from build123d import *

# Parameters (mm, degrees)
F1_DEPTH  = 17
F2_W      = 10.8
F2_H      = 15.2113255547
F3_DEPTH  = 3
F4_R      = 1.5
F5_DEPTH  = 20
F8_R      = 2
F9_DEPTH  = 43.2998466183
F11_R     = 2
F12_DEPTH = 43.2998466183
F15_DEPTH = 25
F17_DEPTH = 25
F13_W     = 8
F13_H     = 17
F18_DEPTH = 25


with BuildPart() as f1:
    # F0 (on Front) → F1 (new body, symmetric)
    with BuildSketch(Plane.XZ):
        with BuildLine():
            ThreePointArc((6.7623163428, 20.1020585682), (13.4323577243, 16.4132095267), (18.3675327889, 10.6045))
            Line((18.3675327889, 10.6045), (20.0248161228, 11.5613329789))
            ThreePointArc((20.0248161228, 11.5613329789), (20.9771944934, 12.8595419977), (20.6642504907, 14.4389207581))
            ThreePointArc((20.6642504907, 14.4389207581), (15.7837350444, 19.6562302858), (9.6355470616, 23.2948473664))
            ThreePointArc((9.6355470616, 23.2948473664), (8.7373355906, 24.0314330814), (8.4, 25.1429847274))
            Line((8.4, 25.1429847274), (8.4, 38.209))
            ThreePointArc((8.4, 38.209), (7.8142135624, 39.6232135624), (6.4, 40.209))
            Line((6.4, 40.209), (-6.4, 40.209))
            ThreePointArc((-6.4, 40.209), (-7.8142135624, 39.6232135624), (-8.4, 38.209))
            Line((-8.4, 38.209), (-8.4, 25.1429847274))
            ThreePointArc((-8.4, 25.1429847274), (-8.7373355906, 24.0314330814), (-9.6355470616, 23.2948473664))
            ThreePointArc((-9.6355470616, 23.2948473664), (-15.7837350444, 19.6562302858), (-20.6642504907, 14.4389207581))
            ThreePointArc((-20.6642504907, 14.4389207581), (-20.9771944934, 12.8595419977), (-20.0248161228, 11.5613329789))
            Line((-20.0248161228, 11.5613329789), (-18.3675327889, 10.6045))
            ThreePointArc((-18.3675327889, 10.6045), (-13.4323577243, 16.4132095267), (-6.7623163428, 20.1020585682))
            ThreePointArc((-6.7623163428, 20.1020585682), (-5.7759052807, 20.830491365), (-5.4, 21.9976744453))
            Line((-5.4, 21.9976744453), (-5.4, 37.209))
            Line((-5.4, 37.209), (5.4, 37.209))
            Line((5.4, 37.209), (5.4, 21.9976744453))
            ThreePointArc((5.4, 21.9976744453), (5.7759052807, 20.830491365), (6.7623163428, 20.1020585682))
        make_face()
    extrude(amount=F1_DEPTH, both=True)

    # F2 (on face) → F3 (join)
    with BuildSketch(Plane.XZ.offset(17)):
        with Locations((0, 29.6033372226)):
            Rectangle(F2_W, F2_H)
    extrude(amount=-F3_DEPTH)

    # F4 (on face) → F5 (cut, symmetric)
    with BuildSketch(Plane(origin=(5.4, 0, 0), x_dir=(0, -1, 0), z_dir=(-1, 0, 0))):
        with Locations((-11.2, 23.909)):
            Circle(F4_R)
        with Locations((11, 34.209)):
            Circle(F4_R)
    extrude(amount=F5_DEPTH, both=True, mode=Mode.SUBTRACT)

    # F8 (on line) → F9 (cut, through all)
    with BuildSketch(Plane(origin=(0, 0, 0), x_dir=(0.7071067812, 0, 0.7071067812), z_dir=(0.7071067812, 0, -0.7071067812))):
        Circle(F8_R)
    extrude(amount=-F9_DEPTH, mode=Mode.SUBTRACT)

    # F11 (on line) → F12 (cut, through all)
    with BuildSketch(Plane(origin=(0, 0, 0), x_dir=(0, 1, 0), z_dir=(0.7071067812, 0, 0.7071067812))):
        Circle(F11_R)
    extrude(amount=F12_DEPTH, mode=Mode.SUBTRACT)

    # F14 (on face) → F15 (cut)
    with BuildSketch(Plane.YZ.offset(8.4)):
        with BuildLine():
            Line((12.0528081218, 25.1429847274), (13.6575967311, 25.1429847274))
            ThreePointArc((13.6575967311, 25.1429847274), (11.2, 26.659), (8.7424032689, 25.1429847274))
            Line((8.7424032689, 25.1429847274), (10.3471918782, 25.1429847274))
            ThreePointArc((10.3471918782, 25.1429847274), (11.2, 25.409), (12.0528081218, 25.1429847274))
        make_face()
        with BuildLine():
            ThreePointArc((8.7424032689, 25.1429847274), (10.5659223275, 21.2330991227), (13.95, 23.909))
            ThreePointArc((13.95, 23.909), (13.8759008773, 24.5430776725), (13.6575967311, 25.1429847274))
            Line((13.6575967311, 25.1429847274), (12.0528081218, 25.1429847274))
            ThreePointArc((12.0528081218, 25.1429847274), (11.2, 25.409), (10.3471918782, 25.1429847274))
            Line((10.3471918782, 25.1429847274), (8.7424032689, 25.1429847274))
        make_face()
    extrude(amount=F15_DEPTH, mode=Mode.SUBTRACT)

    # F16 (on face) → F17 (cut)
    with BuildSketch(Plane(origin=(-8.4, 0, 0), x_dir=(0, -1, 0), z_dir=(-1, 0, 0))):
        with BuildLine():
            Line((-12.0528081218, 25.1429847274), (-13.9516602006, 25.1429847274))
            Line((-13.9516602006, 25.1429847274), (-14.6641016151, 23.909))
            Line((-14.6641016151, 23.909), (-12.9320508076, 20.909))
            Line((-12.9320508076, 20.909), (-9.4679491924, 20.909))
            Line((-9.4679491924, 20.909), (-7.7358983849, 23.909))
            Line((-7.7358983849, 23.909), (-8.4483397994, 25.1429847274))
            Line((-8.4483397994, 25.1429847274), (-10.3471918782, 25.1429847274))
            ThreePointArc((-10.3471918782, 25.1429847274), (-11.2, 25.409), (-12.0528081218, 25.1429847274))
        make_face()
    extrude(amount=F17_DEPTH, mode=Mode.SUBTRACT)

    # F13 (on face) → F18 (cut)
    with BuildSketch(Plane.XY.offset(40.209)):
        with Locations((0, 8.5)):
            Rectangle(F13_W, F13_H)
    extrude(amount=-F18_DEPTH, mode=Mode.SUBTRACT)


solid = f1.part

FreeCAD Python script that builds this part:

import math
import FreeCAD as App
import Part
import Sketcher

V = App.Vector
Q = App.Units.Quantity


def add_polygon(sketch, points):
    """Adds a closed chain of lines whose ends are joined by coincident constraints."""
    first, n = sketch.GeometryCount, len(points)
    for a, b in zip(points, points[1:] + points[:1]):
        sketch.addGeometry(Part.LineSegment(App.Vector(*a, 0), App.Vector(*b, 0)), False)
    for i in range(n):
        sketch.addConstraint(Sketcher.Constraint("Coincident", first + i, 2, first + (i + 1) % n, 1))

doc = App.newDocument("Part")
body = doc.addObject("PartDesign::Body", "Body")

# Sketch on XZ plane
sketch1 = doc.addObject("Sketcher::SketchObject", "Sketch")
body.addObject(sketch1)
sketch1.AttachmentSupport = (doc.XZ_Plane, [""])
sketch1.MapMode = "FlatFace"
sketch1.addGeometry([
    Part.ArcOfCircle(Part.Circle(V(0, 0, 0), V(0, 0, 1), 21.209), math.radians(30), math.radians(71.407102)),  # 0
    Part.LineSegment(V(18.367533, 10.6045, 0), V(20.024816, 11.561333, 0)),  # 1
    Part.ArcOfCircle(Part.Circle(V(19.024816, 13.293384, 0), V(0, 0, 1), 2), math.radians(-60), math.radians(34.943507)),  # 2
    Part.ArcOfCircle(Part.Circle(V(0, 0, 0), V(0, 0, 1), 25.209), math.radians(34.943507), math.radians(67.528336)),  # 3
    Part.ArcOfCircle(Part.Circle(V(10.4, 25.142985, 0), V(0, 0, 1), 2), math.radians(180), math.radians(247.528336)),  # 4
    Part.LineSegment(V(8.4, 25.142985, 0), V(8.4, 38.209, 0)),  # 5
    Part.ArcOfCircle(Part.Circle(V(6.4, 38.209, 0), V(0, 0, 1), 2), math.radians(0), math.radians(90)),  # 6
    Part.LineSegment(V(6.4, 40.209, 0), V(-6.4, 40.209, 0)),  # 7
    Part.ArcOfCircle(Part.Circle(V(-6.4, 38.209, 0), V(0, 0, 1), 2), math.radians(90), math.radians(180)),  # 8
    Part.LineSegment(V(-8.4, 38.209, 0), V(-8.4, 25.142985, 0)),  # 9
    Part.ArcOfCircle(Part.Circle(V(-10.4, 25.142985, 0), V(0, 0, 1), 2), math.radians(-67.528336), math.radians(0)),  # 10
    Part.ArcOfCircle(Part.Circle(V(0, 0, 0), V(0, 0, 1), 25.209), math.radians(112.471664), math.radians(145.056493)),  # 11
    Part.ArcOfCircle(Part.Circle(V(-19.024816, 13.293384, 0), V(0, 0, 1), 2), math.radians(145.056493), math.radians(240)),  # 12
    Part.LineSegment(V(-20.024816, 11.561333, 0), V(-18.367533, 10.6045, 0)),  # 13
    Part.ArcOfCircle(Part.Circle(V(0, 0, 0), V(0, 0, 1), 21.209), math.radians(108.592898), math.radians(150)),  # 14
    Part.ArcOfCircle(Part.Circle(V(-7.4, 21.997674, 0), V(0, 0, 1), 2), math.radians(-71.407102), math.radians(0)),  # 15
    Part.LineSegment(V(-5.4, 21.997674, 0), V(-5.4, 37.209, 0)),  # 16
    Part.LineSegment(V(-5.4, 37.209, 0), V(5.4, 37.209, 0)),  # 17
    Part.LineSegment(V(5.4, 37.209, 0), V(5.4, 21.997674, 0)),  # 18
    Part.ArcOfCircle(Part.Circle(V(7.4, 21.997674, 0), V(0, 0, 1), 2), math.radians(180), math.radians(251.407102)),  # 19
], False)
sketch1.addConstraint([
    Sketcher.Constraint("Coincident", 0, 1, 1, 1),
    Sketcher.Constraint("Tangent", 1, 2, 2, 1),
    Sketcher.Constraint("Tangent", 2, 2, 3, 1),
    Sketcher.Constraint("Tangent", 3, 2, 4, 2),
    Sketcher.Constraint("Tangent", 4, 1, 5, 1),
    Sketcher.Constraint("Tangent", 5, 2, 6, 1),
    Sketcher.Constraint("Tangent", 6, 2, 7, 1),
    Sketcher.Constraint("Tangent", 7, 2, 8, 1),
    Sketcher.Constraint("Tangent", 8, 2, 9, 1),
    Sketcher.Constraint("Tangent", 9, 2, 10, 2),
    Sketcher.Constraint("Tangent", 10, 1, 11, 1),
    Sketcher.Constraint("Tangent", 11, 2, 12, 1),
    Sketcher.Constraint("Tangent", 12, 2, 13, 1),
    Sketcher.Constraint("Coincident", 13, 2, 14, 2),
    Sketcher.Constraint("Tangent", 14, 1, 15, 1),
    Sketcher.Constraint("Tangent", 15, 2, 16, 1),
    Sketcher.Constraint("Coincident", 16, 2, 17, 1),
    Sketcher.Constraint("Coincident", 17, 2, 18, 1),
    Sketcher.Constraint("Tangent", 18, 2, 19, 1),
    Sketcher.Constraint("Tangent", 19, 2, 0, 2),
    Sketcher.Constraint("Vertical", 5),
    Sketcher.Constraint("Horizontal", 7),
    Sketcher.Constraint("Vertical", 9),
    Sketcher.Constraint("Vertical", 16),
    Sketcher.Constraint("Horizontal", 17),
    Sketcher.Constraint("Vertical", 18),
    Sketcher.Constraint("Coincident", 0, 3, -1, 1),
    Sketcher.Constraint("Coincident", 3, 3, -1, 1),
    Sketcher.Constraint("Coincident", 11, 3, -1, 1),
    Sketcher.Constraint("Coincident", 14, 3, -1, 1),
    Sketcher.Constraint("Equal", 2, 4),
    Sketcher.Constraint("Equal", 4, 6),
    Sketcher.Constraint("Equal", 6, 8),
    Sketcher.Constraint("Equal", 8, 10),
    Sketcher.Constraint("Equal", 3, 11),
    Sketcher.Constraint("Equal", 10, 12),
    Sketcher.Constraint("Equal", 0, 14),
    Sketcher.Constraint("Equal", 12, 15),
    Sketcher.Constraint("Equal", 15, 19),
    Sketcher.Constraint("Symmetric", 1, 2, 12, 2, -2),
    Sketcher.Constraint("Horizontal", 4, 3, 10, 3),
    Sketcher.Constraint("Horizontal", 15, 3, 19, 3),
    Sketcher.Constraint("Radius", 2, Q("2 mm")),
    Sketcher.Constraint("Angle", 1, Q("30 deg")),
    Sketcher.Constraint("DistanceX", 7, 2, 7, 1, Q("12.8 mm")),
    Sketcher.Constraint("DistanceX", 17, 1, 17, 2, Q("10.8 mm")),
    Sketcher.Constraint("Radius", 0, Q("21.209 mm")),
    Sketcher.Constraint("Radius", 3, Q("25.209 mm")),
    Sketcher.Constraint("DistanceY", 16, 2, 8, 3, Q("1 mm")),
    Sketcher.Constraint("DistanceY", -1, 1, 6, 3, Q("38.209 mm")),
    Sketcher.Constraint("DistanceY", -1, 1, 0, 1, Q("10.6045 mm")),
])
pad1 = doc.addObject("PartDesign::Pad", "Pad")
body.addObject(pad1)
pad1.Profile = sketch1
pad1.Length = 34
pad1.Midplane = True

# Sketch on XZ plane
sketch2 = doc.addObject("Sketcher::SketchObject", "Sketch001")
body.addObject(sketch2)
sketch2.AttachmentSupport = (doc.XZ_Plane, [""])
sketch2.MapMode = "FlatFace"
sketch2.AttachmentOffset = App.Placement(V(0, 0, 17), App.Rotation())
add_polygon(sketch2, [(-5.4, 37.209), (-5.4, 21.997674), (5.4, 21.997674), (5.4, 37.209)])  # lines 0-3
sketch2.addConstraint([
    Sketcher.Constraint("Vertical", 0),
    Sketcher.Constraint("Horizontal", 1),
    Sketcher.Constraint("Vertical", 2),
    Sketcher.Constraint("Horizontal", 3),
    Sketcher.Constraint("DistanceX", 1, 1, 1, 2, Q("10.8 mm")),
    Sketcher.Constraint("DistanceX", 0, 2, -1, 1, Q("5.4 mm")),
    Sketcher.Constraint("DistanceY", -1, 1, 2, 2, Q("37.209 mm")),
    Sketcher.Constraint("DistanceY", 0, 2, 0, 1, Q("15.211326 mm")),
])
pad2 = doc.addObject("PartDesign::Pad", "Pad001")
body.addObject(pad2)
pad2.Profile = sketch2
pad2.Length = 3
pad2.Reversed = True

# Sketch on YZ plane
sketch3 = doc.addObject("Sketcher::SketchObject", "Sketch002")
body.addObject(sketch3)
sketch3.AttachmentSupport = (doc.YZ_Plane, [""])
sketch3.MapMode = "FlatFace"
sketch3.AttachmentOffset = App.Placement(V(0, 0, 5.4), App.Rotation())
sketch3.addGeometry([
    Part.Circle(V(11.2, 23.909, 0), V(0, 0, 1), 1.5),
    Part.Circle(V(-11, 34.209, 0), V(0, 0, 1), 1.5),
], False)
sketch3.addConstraint([
    Sketcher.Constraint("Equal", 0, 1),
    Sketcher.Constraint("Diameter", 0, Q("3 mm")),
    Sketcher.Constraint("DistanceX", 1, 3, -1, 1, Q("11 mm")),
    Sketcher.Constraint("DistanceX", -1, 1, 0, 3, Q("11.2 mm")),
    Sketcher.Constraint("DistanceY", 0, 3, 1, 3, Q("10.3 mm")),
    Sketcher.Constraint("DistanceY", -1, 1, 0, 3, Q("23.909 mm")),
])
pocket1 = doc.addObject("PartDesign::Pocket", "Pocket")
body.addObject(pocket1)
pocket1.Profile = sketch3
pocket1.Length = 40
pocket1.Midplane = True

# Sketch on an angled plane
sketch4 = doc.addObject("Sketcher::SketchObject", "Sketch003")
body.addObject(sketch4)
sketch4.Placement = App.Placement(V(0, 0, 0), App.Rotation(V(0.707106781, 0, 0.707106781), V(0, -0.999999999, 0), V(0.707106781, 0, -0.707106781), "ZXY"))
sketch4.addGeometry(Part.Circle(V(0, 0, 0), V(0, 0, 1), 2), False)
sketch4.addConstraint([
    Sketcher.Constraint("Coincident", 0, 3, -1, 1),
    Sketcher.Constraint("Diameter", 0, Q("4 mm")),
])
pocket2 = doc.addObject("PartDesign::Pocket", "Pocket001")
body.addObject(pocket2)
pocket2.Profile = sketch4
pocket2.Type = "ThroughAll"

# Sketch on an angled plane
sketch5 = doc.addObject("Sketcher::SketchObject", "Sketch004")
body.addObject(sketch5)
sketch5.Placement = App.Placement(V(0, 0, 0), App.Rotation(V(0, 1, 0), V(-0.707106781, 0, 0.707106781), V(0.707106781, 0, 0.707106781), "ZXY"))
sketch5.addGeometry(Part.Circle(V(0, 0, 0), V(0, 0, 1), 2), False)
sketch5.addConstraint([
    Sketcher.Constraint("Coincident", 0, 3, -1, 1),
    Sketcher.Constraint("Diameter", 0, Q("4 mm")),
])
pocket3 = doc.addObject("PartDesign::Pocket", "Pocket002")
body.addObject(pocket3)
pocket3.Profile = sketch5
pocket3.Type = "ThroughAll"
pocket3.Reversed = True

# Sketch on YZ plane
sketch6 = doc.addObject("Sketcher::SketchObject", "Sketch005")
body.addObject(sketch6)
sketch6.AttachmentSupport = (doc.YZ_Plane, [""])
sketch6.MapMode = "FlatFace"
sketch6.AttachmentOffset = App.Placement(V(0, 0, 8.4), App.Rotation())
sketch6.addGeometry([
    Part.ArcOfCircle(Part.Circle(V(11.2, 23.909, 0), V(0, 0, 1), 2.75), math.radians(26.6617), math.radians(153.3383)),
    Part.ArcOfCircle(Part.Circle(V(11.2, 23.909, 0), V(0, 0, 1), 2.75), math.radians(153.3383), math.radians(360)),
    Part.ArcOfCircle(Part.Circle(V(11.2, 23.909, 0), V(0, 0, 1), 2.75), math.radians(0), math.radians(26.6617)),
], False)
sketch6.addConstraint([
    Sketcher.Constraint("Tangent", 0, 2, 1, 1),
    Sketcher.Constraint("Tangent", 1, 2, 2, 1),
    Sketcher.Constraint("Tangent", 2, 2, 0, 1),
    Sketcher.Constraint("Horizontal", 2, 3, 1, 2),
    Sketcher.Constraint("Horizontal", 0, 2, 2, 2),
    Sketcher.Constraint("Radius", 0, Q("2.75 mm")),
    Sketcher.Constraint("DistanceX", -1, 1, 0, 3, Q("11.2 mm")),
    Sketcher.Constraint("DistanceY", -1, 1, 0, 3, Q("23.909 mm")),
    Sketcher.Constraint("DistanceX", -1, 1, 0, 2, Q("8.742403 mm")),
])
pocket4 = doc.addObject("PartDesign::Pocket", "Pocket003")
body.addObject(pocket4)
pocket4.Profile = sketch6
pocket4.Length = 25
pocket4.Reversed = True

# Sketch on YZ plane
sketch7 = doc.addObject("Sketcher::SketchObject", "Sketch006")
body.addObject(sketch7)
sketch7.AttachmentSupport = (doc.YZ_Plane, [""])
sketch7.MapMode = "FlatFace"
sketch7.AttachmentOffset = App.Placement(V(0, 0, -8.4), App.Rotation())
sketch7.addGeometry([
    Part.LineSegment(V(12.052808, 25.142985, 0), V(13.95166, 25.142985, 0)),  # 0
    Part.LineSegment(V(13.95166, 25.142985, 0), V(14.664102, 23.909, 0)),  # 1
    Part.LineSegment(V(14.664102, 23.909, 0), V(12.932051, 20.909, 0)),  # 2
    Part.LineSegment(V(12.932051, 20.909, 0), V(9.467949, 20.909, 0)),  # 3
    Part.LineSegment(V(9.467949, 20.909, 0), V(7.735898, 23.909, 0)),  # 4
    Part.LineSegment(V(7.735898, 23.909, 0), V(8.44834, 25.142985, 0)),  # 5
    Part.LineSegment(V(8.44834, 25.142985, 0), V(10.347192, 25.142985, 0)),  # 6
    Part.ArcOfCircle(Part.Circle(V(11.2, 23.909, 0), V(0, 0, 1), 1.5), math.radians(55.351609), math.radians(124.648391)),  # 7
], False)
sketch7.addConstraint([
    Sketcher.Constraint("Coincident", 0, 2, 1, 1),
    Sketcher.Constraint("Coincident", 1, 2, 2, 1),
    Sketcher.Constraint("Coincident", 2, 2, 3, 1),
    Sketcher.Constraint("Coincident", 3, 2, 4, 1),
    Sketcher.Constraint("Coincident", 4, 2, 5, 1),
    Sketcher.Constraint("Coincident", 5, 2, 6, 1),
    Sketcher.Constraint("Coincident", 6, 2, 7, 2),
    Sketcher.Constraint("Coincident", 7, 1, 0, 1),
    Sketcher.Constraint("Horizontal", 0),
    Sketcher.Constraint("Horizontal", 3),
    Sketcher.Constraint("Horizontal", 6),
    Sketcher.Constraint("Parallel", 1, 4),
    Sketcher.Constraint("Parallel", 2, 5),
    Sketcher.Constraint("Horizontal", 7, 3, 1, 2),
    Sketcher.Constraint("Horizontal", 1, 2, 4, 2),
    Sketcher.Constraint("Horizontal", 0, 2, 5, 2),
    Sketcher.Constraint("Equal", 0, 6),
    Sketcher.Constraint("Equal", 2, 4),
    Sketcher.Constraint("Radius", 7, Q("1.5 mm")),
    Sketcher.Constraint("Angle", 1, Q("-60 deg")),
    Sketcher.Constraint("DistanceY", 2, 2, 1, 2, Q("3 mm")),
    Sketcher.Constraint("DistanceX", -1, 1, 7, 3, Q("11.2 mm")),
    Sketcher.Constraint("DistanceX", 3, 2, 3, 1, Q("3.464102 mm")),
    Sketcher.Constraint("DistanceY", -1, 1, 7, 3, Q("23.909 mm")),
    Sketcher.Constraint("DistanceX", 0, 1, 0, 2, Q("1.898852 mm")),
])
pocket5 = doc.addObject("PartDesign::Pocket", "Pocket004")
body.addObject(pocket5)
pocket5.Profile = sketch7
pocket5.Length = 25

# Sketch on XY plane
sketch8 = doc.addObject("Sketcher::SketchObject", "Sketch007")
body.addObject(sketch8)
sketch8.AttachmentSupport = (doc.XY_Plane, [""])
sketch8.MapMode = "FlatFace"
sketch8.AttachmentOffset = App.Placement(V(0, 0, 40.209), App.Rotation())
add_polygon(sketch8, [(-4, 17), (-4, 0), (4, 0), (4, 17)])  # lines 0-3
sketch8.addConstraint([
    Sketcher.Constraint("Vertical", 0),
    Sketcher.Constraint("Horizontal", 1),
    Sketcher.Constraint("Vertical", 2),
    Sketcher.Constraint("Horizontal", 3),
    Sketcher.Constraint("Symmetric", 0, 2, 1, 2, -1, 1),
    Sketcher.Constraint("DistanceX", 1, 1, 1, 2, Q("8 mm")),
    Sketcher.Constraint("DistanceY", 0, 2, 0, 1, Q("17 mm")),
])
pocket6 = doc.addObject("PartDesign::Pocket", "Pocket005")
body.addObject(pocket6)
pocket6.Profile = sketch8
pocket6.Length = 25

doc.recompute()
